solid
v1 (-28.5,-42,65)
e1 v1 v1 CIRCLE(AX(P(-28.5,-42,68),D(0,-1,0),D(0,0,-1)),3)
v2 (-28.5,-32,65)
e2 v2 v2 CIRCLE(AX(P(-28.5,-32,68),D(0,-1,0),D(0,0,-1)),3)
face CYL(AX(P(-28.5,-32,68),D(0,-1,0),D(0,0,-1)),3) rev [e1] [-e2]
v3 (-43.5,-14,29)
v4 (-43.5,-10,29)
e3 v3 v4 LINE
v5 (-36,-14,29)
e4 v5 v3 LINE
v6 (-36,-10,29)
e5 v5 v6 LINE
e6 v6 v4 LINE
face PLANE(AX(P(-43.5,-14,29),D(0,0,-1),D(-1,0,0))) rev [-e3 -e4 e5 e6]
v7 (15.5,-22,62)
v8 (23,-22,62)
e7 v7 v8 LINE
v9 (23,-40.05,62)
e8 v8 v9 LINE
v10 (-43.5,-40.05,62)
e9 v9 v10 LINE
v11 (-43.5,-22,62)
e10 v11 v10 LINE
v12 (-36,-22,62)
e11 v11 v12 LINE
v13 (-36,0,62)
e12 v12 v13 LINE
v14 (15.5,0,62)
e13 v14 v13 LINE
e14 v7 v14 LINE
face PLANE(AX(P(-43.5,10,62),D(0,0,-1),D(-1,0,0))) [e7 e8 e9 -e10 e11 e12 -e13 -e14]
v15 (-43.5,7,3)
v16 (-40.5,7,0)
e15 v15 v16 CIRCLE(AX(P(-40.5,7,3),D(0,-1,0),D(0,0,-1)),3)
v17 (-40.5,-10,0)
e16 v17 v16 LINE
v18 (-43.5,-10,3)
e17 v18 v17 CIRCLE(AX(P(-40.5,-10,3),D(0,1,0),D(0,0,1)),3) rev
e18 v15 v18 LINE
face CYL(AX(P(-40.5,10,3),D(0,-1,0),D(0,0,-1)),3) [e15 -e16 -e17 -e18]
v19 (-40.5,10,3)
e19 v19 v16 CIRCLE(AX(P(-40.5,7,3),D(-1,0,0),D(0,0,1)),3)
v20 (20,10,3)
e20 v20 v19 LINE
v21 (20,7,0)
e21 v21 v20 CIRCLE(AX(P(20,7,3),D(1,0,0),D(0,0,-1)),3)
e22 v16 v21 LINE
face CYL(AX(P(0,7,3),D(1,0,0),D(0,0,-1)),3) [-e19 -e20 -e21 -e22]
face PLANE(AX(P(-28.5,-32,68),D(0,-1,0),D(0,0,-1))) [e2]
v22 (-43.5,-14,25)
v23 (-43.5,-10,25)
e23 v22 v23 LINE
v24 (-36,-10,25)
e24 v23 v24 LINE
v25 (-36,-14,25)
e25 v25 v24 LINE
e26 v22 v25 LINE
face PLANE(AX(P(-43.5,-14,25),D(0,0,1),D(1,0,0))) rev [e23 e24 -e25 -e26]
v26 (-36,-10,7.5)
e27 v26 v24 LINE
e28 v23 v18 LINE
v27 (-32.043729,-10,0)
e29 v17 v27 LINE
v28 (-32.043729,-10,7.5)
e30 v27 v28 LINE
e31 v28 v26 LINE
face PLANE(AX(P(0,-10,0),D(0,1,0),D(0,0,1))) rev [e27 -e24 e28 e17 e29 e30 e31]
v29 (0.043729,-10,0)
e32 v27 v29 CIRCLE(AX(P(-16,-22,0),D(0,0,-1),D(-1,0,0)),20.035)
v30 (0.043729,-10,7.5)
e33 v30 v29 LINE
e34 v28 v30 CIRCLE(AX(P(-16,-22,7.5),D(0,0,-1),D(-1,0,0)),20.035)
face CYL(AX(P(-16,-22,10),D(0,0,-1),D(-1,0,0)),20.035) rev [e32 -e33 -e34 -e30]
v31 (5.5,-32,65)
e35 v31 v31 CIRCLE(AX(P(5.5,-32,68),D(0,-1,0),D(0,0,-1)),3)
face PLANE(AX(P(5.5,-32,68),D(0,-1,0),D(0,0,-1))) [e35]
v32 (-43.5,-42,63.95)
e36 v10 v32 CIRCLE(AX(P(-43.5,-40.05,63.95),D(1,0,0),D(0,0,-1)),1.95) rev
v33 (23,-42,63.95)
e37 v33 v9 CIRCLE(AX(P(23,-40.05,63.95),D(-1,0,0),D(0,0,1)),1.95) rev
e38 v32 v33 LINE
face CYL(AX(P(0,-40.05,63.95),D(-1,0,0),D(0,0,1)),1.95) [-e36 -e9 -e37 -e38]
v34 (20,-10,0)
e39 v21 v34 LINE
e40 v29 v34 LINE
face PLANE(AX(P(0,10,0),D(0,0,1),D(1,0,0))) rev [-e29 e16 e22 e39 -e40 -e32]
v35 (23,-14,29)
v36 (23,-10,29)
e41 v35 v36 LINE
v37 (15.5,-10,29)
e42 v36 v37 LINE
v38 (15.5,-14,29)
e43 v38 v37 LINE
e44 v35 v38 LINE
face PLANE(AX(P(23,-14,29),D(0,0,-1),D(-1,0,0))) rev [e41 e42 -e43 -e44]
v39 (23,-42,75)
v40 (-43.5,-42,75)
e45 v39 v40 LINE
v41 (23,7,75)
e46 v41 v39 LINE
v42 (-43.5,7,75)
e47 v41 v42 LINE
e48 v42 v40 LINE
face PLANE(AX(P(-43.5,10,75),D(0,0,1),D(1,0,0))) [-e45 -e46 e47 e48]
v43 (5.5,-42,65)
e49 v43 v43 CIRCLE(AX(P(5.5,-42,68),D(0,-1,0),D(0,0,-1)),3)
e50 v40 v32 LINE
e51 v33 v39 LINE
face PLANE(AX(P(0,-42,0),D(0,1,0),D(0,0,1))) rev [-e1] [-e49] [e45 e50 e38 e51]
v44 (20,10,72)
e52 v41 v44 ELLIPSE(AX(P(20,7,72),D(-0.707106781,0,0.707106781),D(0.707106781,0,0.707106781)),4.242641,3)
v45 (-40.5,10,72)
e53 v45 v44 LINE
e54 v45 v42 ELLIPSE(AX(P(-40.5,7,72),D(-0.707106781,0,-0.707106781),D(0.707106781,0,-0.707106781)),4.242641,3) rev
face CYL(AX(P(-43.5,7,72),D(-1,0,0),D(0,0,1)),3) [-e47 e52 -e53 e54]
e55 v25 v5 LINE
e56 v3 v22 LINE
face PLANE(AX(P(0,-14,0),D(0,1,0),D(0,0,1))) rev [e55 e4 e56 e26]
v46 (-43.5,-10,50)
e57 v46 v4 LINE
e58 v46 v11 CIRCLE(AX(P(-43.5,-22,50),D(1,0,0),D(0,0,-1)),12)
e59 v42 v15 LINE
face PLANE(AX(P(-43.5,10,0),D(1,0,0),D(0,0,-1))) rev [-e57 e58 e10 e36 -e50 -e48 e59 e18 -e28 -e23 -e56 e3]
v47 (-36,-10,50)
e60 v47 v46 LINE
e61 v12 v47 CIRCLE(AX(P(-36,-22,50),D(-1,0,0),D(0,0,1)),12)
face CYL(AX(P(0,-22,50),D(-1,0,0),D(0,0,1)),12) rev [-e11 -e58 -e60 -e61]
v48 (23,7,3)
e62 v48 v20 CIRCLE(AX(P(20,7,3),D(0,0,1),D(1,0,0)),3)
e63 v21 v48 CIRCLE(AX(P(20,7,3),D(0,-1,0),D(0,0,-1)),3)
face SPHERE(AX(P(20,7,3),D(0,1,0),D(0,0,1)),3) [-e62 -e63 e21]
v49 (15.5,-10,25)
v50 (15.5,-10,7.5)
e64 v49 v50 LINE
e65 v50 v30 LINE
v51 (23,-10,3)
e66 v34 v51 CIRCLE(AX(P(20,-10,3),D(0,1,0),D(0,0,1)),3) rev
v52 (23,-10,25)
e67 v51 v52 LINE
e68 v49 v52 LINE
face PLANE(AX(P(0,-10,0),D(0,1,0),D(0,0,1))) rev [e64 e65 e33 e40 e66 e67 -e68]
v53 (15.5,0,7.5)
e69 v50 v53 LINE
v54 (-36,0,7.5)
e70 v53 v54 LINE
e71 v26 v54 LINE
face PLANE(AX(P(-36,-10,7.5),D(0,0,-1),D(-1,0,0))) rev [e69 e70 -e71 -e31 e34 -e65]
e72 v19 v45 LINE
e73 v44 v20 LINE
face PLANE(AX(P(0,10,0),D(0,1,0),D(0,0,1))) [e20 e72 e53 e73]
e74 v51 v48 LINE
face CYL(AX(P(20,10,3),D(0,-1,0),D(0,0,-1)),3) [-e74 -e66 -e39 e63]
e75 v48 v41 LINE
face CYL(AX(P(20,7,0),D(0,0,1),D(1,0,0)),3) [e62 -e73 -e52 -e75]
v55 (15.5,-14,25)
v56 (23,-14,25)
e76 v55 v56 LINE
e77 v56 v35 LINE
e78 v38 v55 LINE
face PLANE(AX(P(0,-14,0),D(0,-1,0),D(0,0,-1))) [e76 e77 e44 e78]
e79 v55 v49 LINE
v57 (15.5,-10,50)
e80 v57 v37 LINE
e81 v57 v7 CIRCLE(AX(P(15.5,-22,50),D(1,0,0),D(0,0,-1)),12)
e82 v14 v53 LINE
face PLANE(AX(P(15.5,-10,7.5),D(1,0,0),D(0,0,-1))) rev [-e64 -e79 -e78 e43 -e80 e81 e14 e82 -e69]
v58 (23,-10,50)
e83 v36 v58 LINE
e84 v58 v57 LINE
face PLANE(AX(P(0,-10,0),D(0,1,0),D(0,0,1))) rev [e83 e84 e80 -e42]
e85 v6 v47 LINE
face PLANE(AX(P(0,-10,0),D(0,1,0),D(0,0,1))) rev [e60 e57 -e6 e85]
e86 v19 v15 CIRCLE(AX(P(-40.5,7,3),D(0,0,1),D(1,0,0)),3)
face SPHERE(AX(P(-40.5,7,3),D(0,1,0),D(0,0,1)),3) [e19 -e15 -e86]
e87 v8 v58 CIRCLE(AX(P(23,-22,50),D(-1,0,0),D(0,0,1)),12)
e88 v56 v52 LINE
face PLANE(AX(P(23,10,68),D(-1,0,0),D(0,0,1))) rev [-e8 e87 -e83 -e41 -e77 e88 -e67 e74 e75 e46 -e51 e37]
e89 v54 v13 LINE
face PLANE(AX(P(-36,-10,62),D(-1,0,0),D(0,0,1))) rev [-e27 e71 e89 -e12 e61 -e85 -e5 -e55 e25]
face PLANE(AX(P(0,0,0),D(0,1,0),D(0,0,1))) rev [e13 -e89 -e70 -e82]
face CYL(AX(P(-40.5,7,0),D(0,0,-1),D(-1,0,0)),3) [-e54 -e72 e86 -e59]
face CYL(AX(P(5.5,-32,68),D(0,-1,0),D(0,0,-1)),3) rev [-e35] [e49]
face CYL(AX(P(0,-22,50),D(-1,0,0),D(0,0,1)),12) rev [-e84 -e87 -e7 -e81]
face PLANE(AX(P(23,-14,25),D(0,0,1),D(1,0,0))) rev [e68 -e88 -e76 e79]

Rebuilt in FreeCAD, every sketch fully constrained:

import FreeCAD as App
import Part
import Sketcher
from FreeCAD import Vector


def edges_at(feature, points):
    """Names of the edges that pass closest to the given points."""
    edges = feature.Shape.Edges
    near = lambda p: min(range(len(edges)), key=lambda i: edges[i].distToShape(Part.Vertex(*p))[0])
    return sorted({f"Edge{near(p) + 1}" for p in points})


def add_polygon(sketch, points):
    """Adds a closed chain of lines whose ends are joined by coincident constraints."""
    first, n = sketch.GeometryCount, len(points)
    for a, b in zip(points, points[1:] + points[:1]):
        sketch.addGeometry(Part.LineSegment(App.Vector(*a, 0), App.Vector(*b, 0)), False)
    for i in range(n):
        sketch.addConstraint(Sketcher.Constraint("Coincident", first + i, 2, first + (i + 1) % n, 1))

doc = App.newDocument("Part")
body = doc.addObject("PartDesign::Body", "Body")

# Sketch on XZ plane
sketch1 = body.newObject("Sketcher::SketchObject", "Sketch")
sketch1.AttachmentSupport = (doc.getObject("XZ_Plane"), [""])
sketch1.MapMode = "FlatFace"
add_polygon(sketch1, [(-44, 0), (-44, 68), (23, 68), (23, 0)])  # lines 0-3
sketch1.addConstraint(Sketcher.Constraint("Vertical", 0))
sketch1.addConstraint(Sketcher.Constraint("Horizontal", 1))
sketch1.addConstraint(Sketcher.Constraint("Vertical", 2))
sketch1.addConstraint(Sketcher.Constraint("Horizontal", 3))
sketch1.addConstraint(Sketcher.Constraint("PointOnObject", 2, 2, -1))
sketch1.addConstraint(Sketcher.Constraint("DistanceY", 0, 1, 0, 2, 68.0))
sketch1.addConstraint(Sketcher.Constraint("DistanceX", 1, 1, 1, 2, 66.5))
sketch1.addConstraint(Sketcher.Constraint("DistanceX", -1, 1, 1, 2, 23.0))
pad1 = body.newObject("PartDesign::Pad", "Pad")
pad1.Profile = sketch1
pad1.Length = 10
pad1.Reversed = True

# Sketch on XZ plane
sketch2 = body.newObject("Sketcher::SketchObject", "Sketch001")
sketch2.AttachmentSupport = (doc.getObject("XZ_Plane"), [""])
sketch2.MapMode = "FlatFace"
add_polygon(sketch2, [(-44, 62), (23, 62), (23, 75), (-44, 75)])  # lines 0-3
sketch2.addConstraint(Sketcher.Constraint("Horizontal", 0))
sketch2.addConstraint(Sketcher.Constraint("Vertical", 1))
sketch2.addConstraint(Sketcher.Constraint("Horizontal", 2))
sketch2.addConstraint(Sketcher.Constraint("Vertical", 3))
sketch2.addConstraint(Sketcher.Constraint("DistanceY", 1, 1, 1, 2, 13.0))
sketch2.addConstraint(Sketcher.Constraint("DistanceX", 0, 1, 0, 2, 66.5))
sketch2.addConstraint(Sketcher.Constraint("DistanceX", -1, 1, 0, 2, 23.0))
sketch2.addConstraint(Sketcher.Constraint("DistanceY", -1, 1, 0, 2, 62.0))
pad2 = body.newObject("PartDesign::Pad", "Pad001")
pad2.Profile = sketch2
pad2.Type = "TwoLengths"
pad2.Length = 42
pad2.Length2 = 10

# Sketch on XZ plane
sketch3 = body.newObject("Sketcher::SketchObject", "Sketch002")
sketch3.AttachmentSupport = (doc.getObject("XZ_Plane"), [""])
sketch3.MapMode = "FlatFace"
add_polygon(sketch3, [(-36, 62), (-44, 62), (-44, 0), (23, 0), (23, 62), (16, 62), (16, 8), (-36, 8)])  # lines 0-7
sketch3.addConstraint(Sketcher.Constraint("Horizontal", 0))
sketch3.addConstraint(Sketcher.Constraint("Vertical", 1))
sketch3.addConstraint(Sketcher.Constraint("Horizontal", 2))
sketch3.addConstraint(Sketcher.Constraint("Vertical", 3))
sketch3.addConstraint(Sketcher.Constraint("Horizontal", 4))
sketch3.addConstraint(Sketcher.Constraint("Vertical", 5))
sketch3.addConstraint(Sketcher.Constraint("Horizontal", 6))
sketch3.addConstraint(Sketcher.Constraint("Vertical", 7))
sketch3.addConstraint(Sketcher.Constraint("PointOnObject", 1, 2, -1))
sketch3.addConstraint(Sketcher.Constraint("Horizontal", 0, 2, 3, 2))
sketch3.addConstraint(Sketcher.Constraint("Equal", 0, 4))
sketch3.addConstraint(Sketcher.Constraint("DistanceY", 1, 2, 1, 1, 62.0))
sketch3.addConstraint(Sketcher.Constraint("DistanceX", 0, 2, 0, 1, 7.5))
sketch3.addConstraint(Sketcher.Constraint("DistanceX", 2, 1, 2, 2, 66.5))
sketch3.addConstraint(Sketcher.Constraint("DistanceY", 5, 2, 5, 1, 54.5))
sketch3.addConstraint(Sketcher.Constraint("DistanceX", -1, 1, 2, 2, 23.0))
pad3 = body.newObject("PartDesign::Pad", "Pad002")
pad3.Profile = sketch3
pad3.Length = 10

# Sketch on XY plane
sketch4 = body.newObject("Sketcher::SketchObject", "Sketch003")
sketch4.AttachmentSupport = (doc.getObject("XY_Plane"), [""])
sketch4.MapMode = "FlatFace"
sketch4.addGeometry(Part.Circle(Vector(-16, -22, 0), Vector(0, 0, 1), 20), False)
sketch4.addConstraint(Sketcher.Constraint("Diameter", 0, 40.07))
sketch4.addConstraint(Sketcher.Constraint("DistanceX", 0, 3, -1, 1, 16.0))
sketch4.addConstraint(Sketcher.Constraint("DistanceY", 0, 3, -1, 1, 22.0))
pocket1 = body.newObject("PartDesign::Pocket", "Pocket")
pocket1.Profile = sketch4
pocket1.Length = 10
pocket1.Reversed = True
doc.recompute()

fillet = body.newObject("PartDesign::Fillet", "Fillet")
fillet.Base = (pocket1, edges_at(pocket1, [(19.25, -10, 62), (-39.75, -10, 62)]))
fillet.Radius = 12

# Sketch on XZ plane
sketch5 = body.newObject("Sketcher::SketchObject", "Sketch004")
sketch5.AttachmentSupport = (doc.getObject("XZ_Plane"), [""])
sketch5.MapMode = "FlatFace"
sketch5.AttachmentOffset = App.Placement(Vector(0, 0, 10), App.Rotation())
add_polygon(sketch5, [(-43.5, 29), (-43.5, 25), (-36, 25), (-36, 29)])  # lines 0-3
add_polygon(sketch5, [(15.5, 29), (15.5, 25), (23, 25), (23, 29)])  # lines 4-7
sketch5.addConstraint(Sketcher.Constraint("Vertical", 0))
sketch5.addConstraint(Sketcher.Constraint("Horizontal", 1))
sketch5.addConstraint(Sketcher.Constraint("Vertical", 2))
sketch5.addConstraint(Sketcher.Constraint("Horizontal", 3))
sketch5.addConstraint(Sketcher.Constraint("Vertical", 4))
sketch5.addConstraint(Sketcher.Constraint("Horizontal", 5))
sketch5.addConstraint(Sketcher.Constraint("Vertical", 6))
sketch5.addConstraint(Sketcher.Constraint("Horizontal", 7))
sketch5.addConstraint(Sketcher.Constraint("Horizontal", 1, 2, 4, 2))
sketch5.addConstraint(Sketcher.Constraint("Horizontal", 3, 2, 6, 2))
sketch5.addConstraint(Sketcher.Constraint("Equal", 3, 5))
sketch5.addConstraint(Sketcher.Constraint("DistanceY", 0, 2, 0, 1, 4.0))
sketch5.addConstraint(Sketcher.Constraint("DistanceX", 1, 1, 1, 2, 7.5))
sketch5.addConstraint(Sketcher.Constraint("DistanceY", -1, 1, 0, 2, 25.0))
sketch5.addConstraint(Sketcher.Constraint("DistanceX", 1, 2, -1, 1, 36.0))
sketch5.addConstraint(Sketcher.Constraint("DistanceX", -1, 1, 5, 2, 23.0))
pad4 = body.newObject("PartDesign::Pad", "Pad003")
pad4.Profile = sketch5
pad4.Length = 4
doc.recompute()

fillet2 = body.newObject("PartDesign::Fillet", "Fillet001")
fillet2.Base = (pad4, edges_at(pad4, [(-10.25, -42, 62)]))
fillet2.Radius = 1.95
doc.recompute()

fillet3 = body.newObject("PartDesign::Fillet", "Fillet002")
fillet3.Base = (fillet2, edges_at(fillet2, [(23, 0, 0), (-43.5, 0, 0)]))
fillet3.Radius = 3
doc.recompute()

fillet4 = body.newObject("PartDesign::Fillet", "Fillet003")
fillet4.Base = (fillet3, edges_at(fillet3, [
    (-10.25, 10, 0),
    (-43.5, 10, 39),
    (-42.621, 10, 0.879),
    (22.121, 10, 0.879),
    (23, 10, 39),
    (-10.25, 10, 75),
]))
fillet4.Radius = 3

# Sketch on XZ plane
sketch6 = body.newObject("Sketcher::SketchObject", "Sketch005")
sketch6.AttachmentSupport = (doc.getObject("XZ_Plane"), [""])
sketch6.MapMode = "FlatFace"
sketch6.AttachmentOffset = App.Placement(Vector(0, 0, 42), App.Rotation())
sketch6.addGeometry(Part.Circle(Vector(-28.5, 68, 0), Vector(0, 0, 1), 3), False)
sketch6.addGeometry(Part.Circle(Vector(5.5, 68, 0), Vector(0, 0, 1), 3), False)
sketch6.addConstraint(Sketcher.Constraint("Equal", 0, 1))
sketch6.addConstraint(Sketcher.Constraint("Horizontal", 0, 3, 1, 3))
sketch6.addConstraint(Sketcher.Constraint("Diameter", 0, 6.0))
sketch6.addConstraint(Sketcher.Constraint("DistanceY", -1, 1, 0, 3, 68.0))
sketch6.addConstraint(Sketcher.Constraint("DistanceX", 0, 3, 1, 3, 34.0))
sketch6.addConstraint(Sketcher.Constraint("DistanceX", 0, 3, -1, 1, 28.5))
pocket2 = body.newObject("PartDesign::Pocket", "Pocket001")
pocket2.Profile = sketch6
pocket2.Length = 10

doc.recompute()
